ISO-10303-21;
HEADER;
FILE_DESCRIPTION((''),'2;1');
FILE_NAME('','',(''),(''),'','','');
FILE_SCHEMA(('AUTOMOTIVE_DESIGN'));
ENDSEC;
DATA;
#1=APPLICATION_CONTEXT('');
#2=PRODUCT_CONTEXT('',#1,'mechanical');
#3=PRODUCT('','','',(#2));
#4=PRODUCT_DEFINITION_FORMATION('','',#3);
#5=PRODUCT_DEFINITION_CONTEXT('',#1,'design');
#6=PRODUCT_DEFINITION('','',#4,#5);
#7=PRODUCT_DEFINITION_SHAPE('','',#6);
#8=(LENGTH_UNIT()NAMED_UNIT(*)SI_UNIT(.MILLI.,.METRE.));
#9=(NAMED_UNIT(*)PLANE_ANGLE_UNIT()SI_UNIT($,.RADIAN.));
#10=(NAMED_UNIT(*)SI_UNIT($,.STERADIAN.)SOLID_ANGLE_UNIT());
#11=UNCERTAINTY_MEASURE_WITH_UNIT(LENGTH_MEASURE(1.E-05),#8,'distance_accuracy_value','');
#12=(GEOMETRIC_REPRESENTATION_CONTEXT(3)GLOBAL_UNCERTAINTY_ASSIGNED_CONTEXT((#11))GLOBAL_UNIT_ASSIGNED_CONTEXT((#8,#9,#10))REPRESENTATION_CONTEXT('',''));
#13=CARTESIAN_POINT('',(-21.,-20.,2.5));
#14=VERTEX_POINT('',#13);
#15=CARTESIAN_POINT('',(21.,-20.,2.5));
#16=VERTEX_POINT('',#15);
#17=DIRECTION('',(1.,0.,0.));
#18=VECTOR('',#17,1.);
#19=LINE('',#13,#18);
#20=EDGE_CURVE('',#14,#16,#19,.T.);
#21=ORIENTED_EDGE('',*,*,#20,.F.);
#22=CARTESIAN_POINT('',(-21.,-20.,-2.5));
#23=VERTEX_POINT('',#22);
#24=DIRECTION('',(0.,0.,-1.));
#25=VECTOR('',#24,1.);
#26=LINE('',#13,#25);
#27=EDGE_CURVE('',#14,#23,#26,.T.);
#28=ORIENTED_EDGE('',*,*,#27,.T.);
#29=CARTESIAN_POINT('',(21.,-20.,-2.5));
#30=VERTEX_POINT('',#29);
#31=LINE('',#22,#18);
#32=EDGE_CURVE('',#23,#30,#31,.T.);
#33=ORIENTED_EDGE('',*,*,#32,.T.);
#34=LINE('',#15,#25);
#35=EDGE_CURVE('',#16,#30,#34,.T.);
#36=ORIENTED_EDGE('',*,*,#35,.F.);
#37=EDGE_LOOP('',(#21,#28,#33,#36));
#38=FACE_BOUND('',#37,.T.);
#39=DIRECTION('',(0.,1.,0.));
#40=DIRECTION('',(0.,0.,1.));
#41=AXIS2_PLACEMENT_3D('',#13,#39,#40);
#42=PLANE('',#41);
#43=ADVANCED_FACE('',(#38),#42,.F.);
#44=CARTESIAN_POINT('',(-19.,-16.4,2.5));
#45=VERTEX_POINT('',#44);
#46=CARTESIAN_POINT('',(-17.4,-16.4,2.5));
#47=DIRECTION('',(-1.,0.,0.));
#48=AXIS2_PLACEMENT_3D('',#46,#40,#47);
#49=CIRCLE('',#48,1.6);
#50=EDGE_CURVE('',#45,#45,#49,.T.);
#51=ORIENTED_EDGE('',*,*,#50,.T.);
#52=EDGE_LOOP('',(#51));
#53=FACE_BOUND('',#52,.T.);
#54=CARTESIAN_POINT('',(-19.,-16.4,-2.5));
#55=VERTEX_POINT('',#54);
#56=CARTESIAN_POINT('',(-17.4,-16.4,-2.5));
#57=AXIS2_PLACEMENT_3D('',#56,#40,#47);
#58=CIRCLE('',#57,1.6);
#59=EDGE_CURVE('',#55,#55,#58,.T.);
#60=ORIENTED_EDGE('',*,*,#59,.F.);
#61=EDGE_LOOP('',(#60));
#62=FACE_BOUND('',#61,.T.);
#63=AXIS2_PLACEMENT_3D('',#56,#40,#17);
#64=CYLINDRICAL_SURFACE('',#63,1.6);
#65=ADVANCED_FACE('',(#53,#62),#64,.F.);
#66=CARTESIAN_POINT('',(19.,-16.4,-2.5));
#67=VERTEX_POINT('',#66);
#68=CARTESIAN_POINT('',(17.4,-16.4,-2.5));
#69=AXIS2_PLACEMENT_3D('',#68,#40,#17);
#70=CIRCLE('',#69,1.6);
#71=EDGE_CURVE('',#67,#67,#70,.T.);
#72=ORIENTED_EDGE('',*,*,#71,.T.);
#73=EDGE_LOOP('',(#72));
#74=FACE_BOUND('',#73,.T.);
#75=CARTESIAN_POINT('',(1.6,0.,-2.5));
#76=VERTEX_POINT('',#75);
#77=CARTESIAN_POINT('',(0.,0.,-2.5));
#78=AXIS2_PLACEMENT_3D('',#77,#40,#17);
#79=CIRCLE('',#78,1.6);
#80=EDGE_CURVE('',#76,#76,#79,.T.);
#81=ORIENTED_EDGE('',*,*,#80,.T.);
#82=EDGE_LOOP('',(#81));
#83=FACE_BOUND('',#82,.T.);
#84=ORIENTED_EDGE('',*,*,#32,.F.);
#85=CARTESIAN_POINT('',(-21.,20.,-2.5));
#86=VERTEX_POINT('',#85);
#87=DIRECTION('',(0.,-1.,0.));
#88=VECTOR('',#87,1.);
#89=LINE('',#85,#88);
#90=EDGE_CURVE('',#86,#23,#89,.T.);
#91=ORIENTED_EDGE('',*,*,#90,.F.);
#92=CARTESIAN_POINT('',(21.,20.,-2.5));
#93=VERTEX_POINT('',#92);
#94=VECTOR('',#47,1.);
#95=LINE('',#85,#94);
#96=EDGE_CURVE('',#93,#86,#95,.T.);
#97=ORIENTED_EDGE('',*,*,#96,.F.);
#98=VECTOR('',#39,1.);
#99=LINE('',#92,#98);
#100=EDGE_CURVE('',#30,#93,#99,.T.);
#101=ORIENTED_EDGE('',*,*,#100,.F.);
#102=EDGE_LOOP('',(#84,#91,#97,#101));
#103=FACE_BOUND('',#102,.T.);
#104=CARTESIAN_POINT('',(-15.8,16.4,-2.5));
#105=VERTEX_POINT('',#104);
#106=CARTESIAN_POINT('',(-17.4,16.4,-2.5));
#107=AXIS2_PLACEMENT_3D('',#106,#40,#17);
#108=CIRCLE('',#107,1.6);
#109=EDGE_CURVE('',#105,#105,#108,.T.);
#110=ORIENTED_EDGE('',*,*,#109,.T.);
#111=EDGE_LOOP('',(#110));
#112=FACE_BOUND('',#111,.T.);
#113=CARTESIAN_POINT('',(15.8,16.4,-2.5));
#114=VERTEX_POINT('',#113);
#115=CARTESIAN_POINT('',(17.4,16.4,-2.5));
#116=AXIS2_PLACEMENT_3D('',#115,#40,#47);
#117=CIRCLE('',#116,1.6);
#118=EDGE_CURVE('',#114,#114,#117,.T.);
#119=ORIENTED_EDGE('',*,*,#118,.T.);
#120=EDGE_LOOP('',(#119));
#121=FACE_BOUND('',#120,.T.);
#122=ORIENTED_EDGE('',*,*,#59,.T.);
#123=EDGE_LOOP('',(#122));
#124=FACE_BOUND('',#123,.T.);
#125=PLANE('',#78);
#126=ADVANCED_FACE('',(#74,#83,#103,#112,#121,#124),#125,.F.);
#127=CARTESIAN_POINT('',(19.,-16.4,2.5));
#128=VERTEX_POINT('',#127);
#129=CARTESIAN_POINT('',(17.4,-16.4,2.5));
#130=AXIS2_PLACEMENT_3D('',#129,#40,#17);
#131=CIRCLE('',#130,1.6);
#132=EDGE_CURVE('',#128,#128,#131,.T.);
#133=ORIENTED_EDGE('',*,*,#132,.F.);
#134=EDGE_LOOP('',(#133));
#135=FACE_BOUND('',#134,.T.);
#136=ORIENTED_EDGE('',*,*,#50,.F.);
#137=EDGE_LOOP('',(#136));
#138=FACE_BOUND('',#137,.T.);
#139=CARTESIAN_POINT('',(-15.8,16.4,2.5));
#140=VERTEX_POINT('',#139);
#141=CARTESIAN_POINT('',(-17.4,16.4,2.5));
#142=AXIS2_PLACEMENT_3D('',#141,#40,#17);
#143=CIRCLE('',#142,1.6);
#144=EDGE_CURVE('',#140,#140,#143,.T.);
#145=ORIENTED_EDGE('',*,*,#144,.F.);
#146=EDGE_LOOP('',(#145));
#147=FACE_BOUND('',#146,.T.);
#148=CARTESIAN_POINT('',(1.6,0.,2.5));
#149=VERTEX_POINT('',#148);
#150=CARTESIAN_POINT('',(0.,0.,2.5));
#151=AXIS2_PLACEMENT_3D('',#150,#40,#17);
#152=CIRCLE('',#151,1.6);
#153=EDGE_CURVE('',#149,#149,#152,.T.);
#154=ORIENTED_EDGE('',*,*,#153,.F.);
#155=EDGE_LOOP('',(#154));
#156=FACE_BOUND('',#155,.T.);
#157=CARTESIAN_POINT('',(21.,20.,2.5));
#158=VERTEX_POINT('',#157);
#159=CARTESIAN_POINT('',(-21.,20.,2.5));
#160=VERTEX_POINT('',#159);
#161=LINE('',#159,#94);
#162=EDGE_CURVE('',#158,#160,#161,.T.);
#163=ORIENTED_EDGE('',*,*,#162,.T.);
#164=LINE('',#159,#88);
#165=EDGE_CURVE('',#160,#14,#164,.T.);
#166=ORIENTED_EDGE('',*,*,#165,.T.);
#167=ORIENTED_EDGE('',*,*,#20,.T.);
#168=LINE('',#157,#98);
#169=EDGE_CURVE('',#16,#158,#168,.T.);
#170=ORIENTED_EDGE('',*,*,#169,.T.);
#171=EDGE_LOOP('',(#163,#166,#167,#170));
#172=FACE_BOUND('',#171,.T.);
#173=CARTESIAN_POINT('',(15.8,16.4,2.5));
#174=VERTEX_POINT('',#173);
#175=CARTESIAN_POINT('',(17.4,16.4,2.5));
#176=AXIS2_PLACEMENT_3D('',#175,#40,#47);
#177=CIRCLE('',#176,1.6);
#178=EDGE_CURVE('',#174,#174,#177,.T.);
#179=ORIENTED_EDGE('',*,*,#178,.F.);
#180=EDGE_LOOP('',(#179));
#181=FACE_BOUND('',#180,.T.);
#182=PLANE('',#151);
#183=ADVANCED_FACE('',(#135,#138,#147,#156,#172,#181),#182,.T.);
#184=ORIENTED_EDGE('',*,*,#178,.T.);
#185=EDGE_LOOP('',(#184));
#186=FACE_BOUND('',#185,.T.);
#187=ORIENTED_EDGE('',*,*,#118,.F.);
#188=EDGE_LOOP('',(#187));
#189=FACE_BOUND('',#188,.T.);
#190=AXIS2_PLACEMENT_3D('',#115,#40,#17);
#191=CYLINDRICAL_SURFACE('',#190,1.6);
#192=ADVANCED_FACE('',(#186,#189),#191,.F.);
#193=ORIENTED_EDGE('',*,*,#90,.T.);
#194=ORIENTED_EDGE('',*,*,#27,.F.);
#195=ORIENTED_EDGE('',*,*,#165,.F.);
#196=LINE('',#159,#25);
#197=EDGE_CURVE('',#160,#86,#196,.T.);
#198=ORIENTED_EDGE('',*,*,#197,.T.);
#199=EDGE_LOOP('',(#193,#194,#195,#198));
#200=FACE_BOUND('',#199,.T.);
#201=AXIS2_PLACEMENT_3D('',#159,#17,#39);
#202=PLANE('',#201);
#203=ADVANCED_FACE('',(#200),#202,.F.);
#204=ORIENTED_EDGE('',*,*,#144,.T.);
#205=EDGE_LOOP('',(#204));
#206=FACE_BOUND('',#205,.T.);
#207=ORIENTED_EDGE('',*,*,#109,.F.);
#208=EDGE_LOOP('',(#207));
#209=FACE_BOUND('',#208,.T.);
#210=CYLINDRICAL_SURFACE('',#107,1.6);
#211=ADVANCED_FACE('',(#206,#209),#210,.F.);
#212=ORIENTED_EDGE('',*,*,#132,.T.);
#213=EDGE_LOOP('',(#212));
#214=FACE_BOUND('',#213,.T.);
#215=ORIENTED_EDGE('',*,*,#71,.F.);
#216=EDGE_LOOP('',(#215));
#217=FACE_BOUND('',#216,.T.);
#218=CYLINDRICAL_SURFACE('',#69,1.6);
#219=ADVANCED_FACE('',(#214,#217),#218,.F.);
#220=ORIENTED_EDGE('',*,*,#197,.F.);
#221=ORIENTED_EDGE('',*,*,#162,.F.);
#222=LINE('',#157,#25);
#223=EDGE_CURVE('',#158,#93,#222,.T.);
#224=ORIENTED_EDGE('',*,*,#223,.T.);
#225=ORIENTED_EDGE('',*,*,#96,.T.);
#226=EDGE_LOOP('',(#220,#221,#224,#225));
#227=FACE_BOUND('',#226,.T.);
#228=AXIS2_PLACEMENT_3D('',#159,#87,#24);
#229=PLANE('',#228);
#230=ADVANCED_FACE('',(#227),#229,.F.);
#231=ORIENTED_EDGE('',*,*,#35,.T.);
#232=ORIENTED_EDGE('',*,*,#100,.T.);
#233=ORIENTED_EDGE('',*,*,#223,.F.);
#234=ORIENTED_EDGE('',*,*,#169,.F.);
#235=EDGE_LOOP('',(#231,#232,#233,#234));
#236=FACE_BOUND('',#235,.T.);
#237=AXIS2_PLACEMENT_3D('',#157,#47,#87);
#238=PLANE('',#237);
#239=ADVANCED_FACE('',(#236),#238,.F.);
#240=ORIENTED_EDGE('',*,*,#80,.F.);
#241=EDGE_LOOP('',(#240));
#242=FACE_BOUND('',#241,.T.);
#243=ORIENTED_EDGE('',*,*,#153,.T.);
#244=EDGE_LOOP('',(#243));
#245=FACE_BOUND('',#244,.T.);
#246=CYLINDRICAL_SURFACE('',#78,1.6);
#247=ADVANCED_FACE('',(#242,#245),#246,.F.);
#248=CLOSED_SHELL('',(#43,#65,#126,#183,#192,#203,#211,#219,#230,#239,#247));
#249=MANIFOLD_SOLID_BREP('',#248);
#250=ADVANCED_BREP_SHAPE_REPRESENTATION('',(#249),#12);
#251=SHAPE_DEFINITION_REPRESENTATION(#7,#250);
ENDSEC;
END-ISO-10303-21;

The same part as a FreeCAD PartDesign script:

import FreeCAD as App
import Part
import Sketcher

V = App.Vector


def add_polygon(sketch, points):
    """Adds a closed chain of lines whose ends are joined by coincident constraints."""
    first, n = sketch.GeometryCount, len(points)
    for a, b in zip(points, points[1:] + points[:1]):
        sketch.addGeometry(Part.LineSegment(App.Vector(*a, 0), App.Vector(*b, 0)), False)
    for i in range(n):
        sketch.addConstraint(Sketcher.Constraint("Coincident", first + i, 2, first + (i + 1) % n, 1))

doc = App.newDocument("Part")
body = doc.addObject("PartDesign::Body", "Body")

# Sketch on XY plane
sketch1 = body.newObject("Sketcher::SketchObject", "Sketch")
sketch1.AttachmentSupport = (doc.getObject("XY_Plane"), [""])
sketch1.MapMode = "FlatFace"
add_polygon(sketch1, [(-21, 20), (-21, -20), (21, -20), (21, 20)])  # lines 0-3
sketch1.addConstraint(Sketcher.Constraint("Vertical", 0))
sketch1.addConstraint(Sketcher.Constraint("Horizontal", 1))
sketch1.addConstraint(Sketcher.Constraint("Vertical", 2))
sketch1.addConstraint(Sketcher.Constraint("Horizontal", 3))
sketch1.addConstraint(Sketcher.Constraint("Symmetric", 0, 2, 2, 2, -1, 1))
sketch1.addConstraint(Sketcher.Constraint("DistanceX", 1, 1, 1, 2, 42.0))
sketch1.addConstraint(Sketcher.Constraint("DistanceY", 0, 2, 0, 1, 40.0))
pad1 = body.newObject("PartDesign::Pad", "Pad")
pad1.Profile = sketch1
pad1.Length = 5
pad1.Midplane = True

# Sketch on XY plane
sketch2 = body.newObject("Sketcher::SketchObject", "Sketch001")
sketch2.AttachmentSupport = (doc.getObject("XY_Plane"), [""])
sketch2.MapMode = "FlatFace"
sketch2.AttachmentOffset = App.Placement(V(0, 0, 2.5), App.Rotation())
sketch2.addGeometry(Part.Circle(V(-17.4, 16.4, 0), V(0, 0, 1), 1.6), False)
sketch2.addGeometry(Part.Circle(V(17.4, 16.4, 0), V(0, 0, 1), 1.6), False)
sketch2.addGeometry(Part.Circle(V(17.4, -16.4, 0), V(0, 0, 1), 1.6), False)
sketch2.addGeometry(Part.Circle(V(-17.4, -16.4, 0), V(0, 0, 1), 1.6), False)
sketch2.addGeometry(Part.Circle(V(0, 0, 0), V(0, 0, 1), 1.6), False)
sketch2.addConstraint(Sketcher.Constraint("Coincident", 4, 3, -1, 1))
sketch2.addConstraint(Sketcher.Constraint("Equal", 0, 1))
sketch2.addConstraint(Sketcher.Constraint("Equal", 1, 2))
sketch2.addConstraint(Sketcher.Constraint("Equal", 2, 3))
sketch2.addConstraint(Sketcher.Constraint("Equal", 3, 4))
sketch2.addConstraint(Sketcher.Constraint("Symmetric", 0, 3, 2, 3, -1, 1))
sketch2.addConstraint(Sketcher.Constraint("Symmetric", 1, 3, 3, 3, -1, 1))
sketch2.addConstraint(Sketcher.Constraint("Symmetric", 0, 3, 1, 3, -2))
sketch2.addConstraint(Sketcher.Constraint("Diameter", 0, 3.2))
sketch2.addConstraint(Sketcher.Constraint("DistanceX", 0, 3, -1, 1, 17.4))
sketch2.addConstraint(Sketcher.Constraint("DistanceY", -1, 1, 0, 3, 16.4))
pocket1 = body.newObject("PartDesign::Pocket", "Pocket")
pocket1.Profile = sketch2
pocket1.Type = "ThroughAll"

doc.recompute()
